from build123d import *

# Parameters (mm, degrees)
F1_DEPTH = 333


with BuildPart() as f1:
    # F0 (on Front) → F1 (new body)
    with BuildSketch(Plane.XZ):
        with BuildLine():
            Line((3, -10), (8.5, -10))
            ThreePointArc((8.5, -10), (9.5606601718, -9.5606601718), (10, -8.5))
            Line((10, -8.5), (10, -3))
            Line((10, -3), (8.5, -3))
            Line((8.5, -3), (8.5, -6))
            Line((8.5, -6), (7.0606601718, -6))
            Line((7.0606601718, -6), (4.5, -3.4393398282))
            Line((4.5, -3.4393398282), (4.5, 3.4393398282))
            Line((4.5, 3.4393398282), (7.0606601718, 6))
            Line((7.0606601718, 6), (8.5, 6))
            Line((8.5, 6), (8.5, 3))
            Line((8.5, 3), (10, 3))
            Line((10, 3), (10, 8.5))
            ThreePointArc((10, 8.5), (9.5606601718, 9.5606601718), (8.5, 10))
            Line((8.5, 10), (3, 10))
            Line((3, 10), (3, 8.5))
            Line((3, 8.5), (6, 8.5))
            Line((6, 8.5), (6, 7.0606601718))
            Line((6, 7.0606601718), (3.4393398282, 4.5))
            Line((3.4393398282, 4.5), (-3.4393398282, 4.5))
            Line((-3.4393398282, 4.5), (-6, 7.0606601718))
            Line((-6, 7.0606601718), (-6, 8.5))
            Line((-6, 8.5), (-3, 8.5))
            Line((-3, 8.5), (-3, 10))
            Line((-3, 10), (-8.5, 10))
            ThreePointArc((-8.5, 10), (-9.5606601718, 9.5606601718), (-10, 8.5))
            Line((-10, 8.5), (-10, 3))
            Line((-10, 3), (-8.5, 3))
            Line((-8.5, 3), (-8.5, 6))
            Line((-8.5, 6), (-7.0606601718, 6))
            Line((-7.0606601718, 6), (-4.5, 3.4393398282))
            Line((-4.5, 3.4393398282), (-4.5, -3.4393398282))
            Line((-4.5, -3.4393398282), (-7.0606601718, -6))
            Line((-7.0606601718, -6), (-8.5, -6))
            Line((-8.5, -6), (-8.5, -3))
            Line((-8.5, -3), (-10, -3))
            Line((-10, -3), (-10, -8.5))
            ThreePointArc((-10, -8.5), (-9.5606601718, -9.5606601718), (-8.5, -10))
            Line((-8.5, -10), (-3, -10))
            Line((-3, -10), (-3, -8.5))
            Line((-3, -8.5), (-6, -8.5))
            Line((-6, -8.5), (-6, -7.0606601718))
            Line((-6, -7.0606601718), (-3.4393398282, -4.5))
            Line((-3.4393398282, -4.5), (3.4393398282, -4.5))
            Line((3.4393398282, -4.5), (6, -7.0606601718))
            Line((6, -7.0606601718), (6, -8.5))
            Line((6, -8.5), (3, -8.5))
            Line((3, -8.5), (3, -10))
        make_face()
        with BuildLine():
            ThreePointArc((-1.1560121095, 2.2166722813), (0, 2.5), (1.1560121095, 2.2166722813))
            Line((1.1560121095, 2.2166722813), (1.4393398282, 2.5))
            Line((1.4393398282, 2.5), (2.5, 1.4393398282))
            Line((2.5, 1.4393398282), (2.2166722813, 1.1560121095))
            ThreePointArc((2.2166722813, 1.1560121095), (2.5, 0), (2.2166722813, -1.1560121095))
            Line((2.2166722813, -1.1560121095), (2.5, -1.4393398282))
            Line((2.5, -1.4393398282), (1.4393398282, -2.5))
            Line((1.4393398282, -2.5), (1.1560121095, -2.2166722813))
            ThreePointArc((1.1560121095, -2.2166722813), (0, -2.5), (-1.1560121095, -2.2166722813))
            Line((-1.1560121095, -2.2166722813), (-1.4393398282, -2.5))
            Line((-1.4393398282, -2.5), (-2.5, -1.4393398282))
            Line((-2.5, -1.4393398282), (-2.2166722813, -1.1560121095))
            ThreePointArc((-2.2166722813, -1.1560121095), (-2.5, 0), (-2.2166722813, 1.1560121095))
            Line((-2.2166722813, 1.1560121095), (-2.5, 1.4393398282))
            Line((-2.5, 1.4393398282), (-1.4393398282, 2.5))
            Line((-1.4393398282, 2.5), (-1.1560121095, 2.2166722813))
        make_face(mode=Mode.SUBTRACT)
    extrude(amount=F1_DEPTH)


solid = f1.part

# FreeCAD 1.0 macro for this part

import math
import FreeCAD as App
import Part
import Sketcher

doc = App.newDocument("Part")
params = doc.addObject("Spreadsheet::Sheet", "Params")
for row, (alias, value) in enumerate([
    ("sketch1_radius", "1.5 mm"),
    ("sketch1_radius2", "2.5 mm"),
    ("sketch1_width", "3 mm"),
    ("sketch1_width2", "5.5 mm"),
    ("sketch1_length", "1.5 mm"),
    ("pad1_length", "333 mm"),
], start=1):
    params.set(f"A{row}", alias)
    params.set(f"B{row}", "=" + value)
    params.setAlias(f"B{row}", alias)

body = doc.addObject("PartDesign::Body", "Body")

sketch1 = body.newObject("Sketcher::SketchObject", "Sketch")
sketch1.AttachmentSupport = (doc.getObject("XZ_Plane"), [""])
sketch1.MapMode = "FlatFace"
sketch1.addGeometry([
    Part.LineSegment(App.Vector(3, -10, 0), App.Vector(8.5, -10, 0)),
    Part.ArcOfCircle(Part.Circle(App.Vector(8.5, -8.5, 0), App.Vector(0, 0, 1), 1.5), math.radians(-90), math.radians(0)),
    Part.LineSegment(App.Vector(10, -8.5, 0), App.Vector(10, -3, 0)),
    Part.LineSegment(App.Vector(10, -3, 0), App.Vector(8.5, -3, 0)),
    Part.LineSegment(App.Vector(8.5, -3, 0), App.Vector(8.5, -6, 0)),
    Part.LineSegment(App.Vector(8.5, -6, 0), App.Vector(7.06066, -6, 0)),
    Part.LineSegment(App.Vector(7.06066, -6, 0), App.Vector(4.5, -3.43934, 0)),
    Part.LineSegment(App.Vector(4.5, -3.43934, 0), App.Vector(4.5, 3.43934, 0)),
    Part.LineSegment(App.Vector(4.5, 3.43934, 0), App.Vector(7.06066, 6, 0)),
    Part.LineSegment(App.Vector(7.06066, 6, 0), App.Vector(8.5, 6, 0)),
    Part.LineSegment(App.Vector(8.5, 6, 0), App.Vector(8.5, 3, 0)),
    Part.LineSegment(App.Vector(8.5, 3, 0), App.Vector(10, 3, 0)),
    Part.LineSegment(App.Vector(10, 3, 0), App.Vector(10, 8.5, 0)),
    Part.ArcOfCircle(Part.Circle(App.Vector(8.5, 8.5, 0), App.Vector(0, 0, 1), 1.5), math.radians(0), math.radians(90)),
    Part.LineSegment(App.Vector(8.5, 10, 0), App.Vector(3, 10, 0)),
    Part.LineSegment(App.Vector(3, 10, 0), App.Vector(3, 8.5, 0)),
    Part.LineSegment(App.Vector(3, 8.5, 0), App.Vector(6, 8.5, 0)),
    Part.LineSegment(App.Vector(6, 8.5, 0), App.Vector(6, 7.06066, 0)),
    Part.LineSegment(App.Vector(6, 7.06066, 0), App.Vector(3.43934, 4.5, 0)),
    Part.LineSegment(App.Vector(3.43934, 4.5, 0), App.Vector(-3.43934, 4.5, 0)),
    Part.LineSegment(App.Vector(-3.43934, 4.5, 0), App.Vector(-6, 7.06066, 0)),
    Part.LineSegment(App.Vector(-6, 7.06066, 0), App.Vector(-6, 8.5, 0)),
    Part.LineSegment(App.Vector(-6, 8.5, 0), App.Vector(-3, 8.5, 0)),
    Part.LineSegment(App.Vector(-3, 8.5, 0), App.Vector(-3, 10, 0)),
    Part.LineSegment(App.Vector(-3, 10, 0), App.Vector(-8.5, 10, 0)),
    Part.ArcOfCircle(Part.Circle(App.Vector(-8.5, 8.5, 0), App.Vector(0, 0, 1), 1.5), math.radians(90), math.radians(180)),
    Part.LineSegment(App.Vector(-10, 8.5, 0), App.Vector(-10, 3, 0)),
    Part.LineSegment(App.Vector(-10, 3, 0), App.Vector(-8.5, 3, 0)),
    Part.LineSegment(App.Vector(-8.5, 3, 0), App.Vector(-8.5, 6, 0)),
    Part.LineSegment(App.Vector(-8.5, 6, 0), App.Vector(-7.06066, 6, 0)),
    Part.LineSegment(App.Vector(-7.06066, 6, 0), App.Vector(-4.5, 3.43934, 0)),
    Part.LineSegment(App.Vector(-4.5, 3.43934, 0), App.Vector(-4.5, -3.43934, 0)),
    Part.LineSegment(App.Vector(-4.5, -3.43934, 0), App.Vector(-7.06066, -6, 0)),
    Part.LineSegment(App.Vector(-7.06066, -6, 0), App.Vector(-8.5, -6, 0)),
    Part.LineSegment(App.Vector(-8.5, -6, 0), App.Vector(-8.5, -3, 0)),
    Part.LineSegment(App.Vector(-8.5, -3, 0), App.Vector(-10, -3, 0)),
    Part.LineSegment(App.Vector(-10, -3, 0), App.Vector(-10, -8.5, 0)),
    Part.ArcOfCircle(Part.Circle(App.Vector(-8.5, -8.5, 0), App.Vector(0, 0, 1), 1.5), math.radians(180), math.radians(270)),
    Part.LineSegment(App.Vector(-8.5, -10, 0), App.Vector(-3, -10, 0)),
    Part.LineSegment(App.Vector(-3, -10, 0), App.Vector(-3, -8.5, 0)),
    Part.LineSegment(App.Vector(-3, -8.5, 0), App.Vector(-6, -8.5, 0)),
    Part.LineSegment(App.Vector(-6, -8.5, 0), App.Vector(-6, -7.06066, 0)),
    Part.LineSegment(App.Vector(-6, -7.06066, 0), App.Vector(-3.43934, -4.5, 0)),
    Part.LineSegment(App.Vector(-3.43934, -4.5, 0), App.Vector(3.43934, -4.5, 0)),
    Part.LineSegment(App.Vector(3.43934, -4.5, 0), App.Vector(6, -7.06066, 0)),
    Part.LineSegment(App.Vector(6, -7.06066, 0), App.Vector(6, -8.5, 0)),
    Part.LineSegment(App.Vector(6, -8.5, 0), App.Vector(3, -8.5, 0)),
    Part.LineSegment(App.Vector(3, -8.5, 0), App.Vector(3, -10, 0)),
    Part.LineSegment(App.Vector(-1.43934, 2.5, 0), App.Vector(-1.156012, 2.216672, 0)),
    Part.ArcOfCircle(Part.Circle(App.Vector(0, 0, 0), App.Vector(0, 0, 1), 2.5), math.radians(62.457603), math.radians(117.542397)),
    Part.LineSegment(App.Vector(1.156012, 2.216672, 0), App.Vector(1.43934, 2.5, 0)),
    Part.LineSegment(App.Vector(1.43934, 2.5, 0), App.Vector(2.5, 1.43934, 0)),
    Part.LineSegment(App.Vector(2.5, 1.43934, 0), App.Vector(2.216672, 1.156012, 0)),
    Part.ArcOfCircle(Part.Circle(App.Vector(0, 0, 0), App.Vector(0, 0, 1), 2.5), math.radians(-27.542397), math.radians(27.542397)),
    Part.LineSegment(App.Vector(2.216672, -1.156012, 0), App.Vector(2.5, -1.43934, 0)),
    Part.LineSegment(App.Vector(2.5, -1.43934, 0), App.Vector(1.43934, -2.5, 0)),
    Part.LineSegment(App.Vector(1.43934, -2.5, 0), App.Vector(1.156012, -2.216672, 0)),
    Part.ArcOfCircle(Part.Circle(App.Vector(0, 0, 0), App.Vector(0, 0, 1), 2.5), math.radians(-117.542397), math.radians(-62.457603)),
    Part.LineSegment(App.Vector(-1.156012, -2.216672, 0), App.Vector(-1.43934, -2.5, 0)),
    Part.LineSegment(App.Vector(-1.43934, -2.5, 0), App.Vector(-2.5, -1.43934, 0)),
    Part.LineSegment(App.Vector(-2.5, -1.43934, 0), App.Vector(-2.216672, -1.156012, 0)),
    Part.ArcOfCircle(Part.Circle(App.Vector(0, 0, 0), App.Vector(0, 0, 1), 2.5), math.radians(152.457603), math.radians(207.542397)),
    Part.LineSegment(App.Vector(-2.216672, 1.156012, 0), App.Vector(-2.5, 1.43934, 0)),
    Part.LineSegment(App.Vector(-2.5, 1.43934, 0), App.Vector(-1.43934, 2.5, 0)),
], False)
sketch1.addConstraint([
    Sketcher.Constraint("Tangent", 0, 2, 1, 1),
    Sketcher.Constraint("Tangent", 1, 2, 2, 1),
    Sketcher.Constraint("Coincident", 2, 2, 3, 1),
    Sketcher.Constraint("Coincident", 3, 2, 4, 1),
    Sketcher.Constraint("Coincident", 4, 2, 5, 1),
    Sketcher.Constraint("Coincident", 5, 2, 6, 1),
    Sketcher.Constraint("Coincident", 6, 2, 7, 1),
    Sketcher.Constraint("Coincident", 7, 2, 8, 1),
    Sketcher.Constraint("Coincident", 8, 2, 9, 1),
    Sketcher.Constraint("Coincident", 9, 2, 10, 1),
    Sketcher.Constraint("Coincident", 10, 2, 11, 1),
    Sketcher.Constraint("Coincident", 11, 2, 12, 1),
    Sketcher.Constraint("Tangent", 12, 2, 13, 1),
    Sketcher.Constraint("Tangent", 13, 2, 14, 1),
    Sketcher.Constraint("Coincident", 14, 2, 15, 1),
    Sketcher.Constraint("Coincident", 15, 2, 16, 1),
    Sketcher.Constraint("Coincident", 16, 2, 17, 1),
    Sketcher.Constraint("Coincident", 17, 2, 18, 1),
    Sketcher.Constraint("Coincident", 18, 2, 19, 1),
    Sketcher.Constraint("Coincident", 19, 2, 20, 1),
    Sketcher.Constraint("Coincident", 20, 2, 21, 1),
    Sketcher.Constraint("Coincident", 21, 2, 22, 1),
    Sketcher.Constraint("Coincident", 22, 2, 23, 1),
    Sketcher.Constraint("Coincident", 23, 2, 24, 1),
    Sketcher.Constraint("Tangent", 24, 2, 25, 1),
    Sketcher.Constraint("Tangent", 25, 2, 26, 1),
    Sketcher.Constraint("Coincident", 26, 2, 27, 1),
    Sketcher.Constraint("Coincident", 27, 2, 28, 1),
    Sketcher.Constraint("Coincident", 28, 2, 29, 1),
    Sketcher.Constraint("Coincident", 29, 2, 30, 1),
    Sketcher.Constraint("Coincident", 30, 2, 31, 1),
    Sketcher.Constraint("Coincident", 31, 2, 32, 1),
    Sketcher.Constraint("Coincident", 32, 2, 33, 1),
    Sketcher.Constraint("Coincident", 33, 2, 34, 1),
    Sketcher.Constraint("Coincident", 34, 2, 35, 1),
    Sketcher.Constraint("Coincident", 35, 2, 36, 1),
    Sketcher.Constraint("Tangent", 36, 2, 37, 1),
    Sketcher.Constraint("Tangent", 37, 2, 38, 1),
    Sketcher.Constraint("Coincident", 38, 2, 39, 1),
    Sketcher.Constraint("Coincident", 39, 2, 40, 1),
    Sketcher.Constraint("Coincident", 40, 2, 41, 1),
    Sketcher.Constraint("Coincident", 41, 2, 42, 1),
    Sketcher.Constraint("Coincident", 42, 2, 43, 1),
    Sketcher.Constraint("Coincident", 43, 2, 44, 1),
    Sketcher.Constraint("Coincident", 44, 2, 45, 1),
    Sketcher.Constraint("Coincident", 45, 2, 46, 1),
    Sketcher.Constraint("Coincident", 46, 2, 47, 1),
    Sketcher.Constraint("Coincident", 47, 2, 0, 1),
    Sketcher.Constraint("Coincident", 48, 2, 49, 2),
    Sketcher.Constraint("Coincident", 49, 1, 50, 1),
    Sketcher.Constraint("Coincident", 50, 2, 51, 1),
    Sketcher.Constraint("Coincident", 51, 2, 52, 1),
    Sketcher.Constraint("Coincident", 52, 2, 53, 2),
    Sketcher.Constraint("Coincident", 53, 1, 54, 1),
    Sketcher.Constraint("Coincident", 54, 2, 55, 1),
    Sketcher.Constraint("Coincident", 55, 2, 56, 1),
    Sketcher.Constraint("Coincident", 56, 2, 57, 2),
    Sketcher.Constraint("Coincident", 57, 1, 58, 1),
    Sketcher.Constraint("Coincident", 58, 2, 59, 1),
    Sketcher.Constraint("Coincident", 59, 2, 60, 1),
    Sketcher.Constraint("Coincident", 60, 2, 61, 2),
    Sketcher.Constraint("Coincident", 61, 1, 62, 1),
    Sketcher.Constraint("Coincident", 62, 2, 63, 1),
    Sketcher.Constraint("Coincident", 63, 2, 48, 1),
    Sketcher.Constraint("Horizontal", 0),
    Sketcher.Constraint("Vertical", 2),
    Sketcher.Constraint("Horizontal", 3),
    Sketcher.Constraint("Vertical", 4),
    Sketcher.Constraint("Horizontal", 5),
    Sketcher.Constraint("Vertical", 7),
    Sketcher.Constraint("Horizontal", 9),
    Sketcher.Constraint("Vertical", 10),
    Sketcher.Constraint("Horizontal", 11),
    Sketcher.Constraint("Vertical", 12),
    Sketcher.Constraint("Horizontal", 14),
    Sketcher.Constraint("Vertical", 15),
    Sketcher.Constraint("Horizontal", 16),
    Sketcher.Constraint("Vertical", 17),
    Sketcher.Constraint("Horizontal", 19),
    Sketcher.Constraint("Vertical", 21),
    Sketcher.Constraint("Horizontal", 22),
    Sketcher.Constraint("Vertical", 23),
    Sketcher.Constraint("Horizontal", 24),
    Sketcher.Constraint("Vertical", 26),
    Sketcher.Constraint("Horizontal", 27),
    Sketcher.Constraint("Vertical", 28),
    Sketcher.Constraint("Horizontal", 29),
    Sketcher.Constraint("Vertical", 31),
    Sketcher.Constraint("Horizontal", 33),
    Sketcher.Constraint("Vertical", 34),
    Sketcher.Constraint("Horizontal", 35),
    Sketcher.Constraint("Vertical", 36),
    Sketcher.Constraint("Horizontal", 38),
    Sketcher.Constraint("Vertical", 39),
    Sketcher.Constraint("Horizontal", 40),
    Sketcher.Constraint("Vertical", 41),
    Sketcher.Constraint("Horizontal", 43),
    Sketcher.Constraint("Vertical", 45),
    Sketcher.Constraint("Horizontal", 46),
    Sketcher.Constraint("Vertical", 47),
    Sketcher.Constraint("Coincident", 49, 3, -1, 1),
    Sketcher.Constraint("Coincident", 53, 3, -1, 1),
    Sketcher.Constraint("Coincident", 57, 3, -1, 1),
    Sketcher.Constraint("Coincident", 61, 3, -1, 1),
    Sketcher.Constraint("Equal", 1, 13),
    Sketcher.Constraint("Equal", 13, 25),
    Sketcher.Constraint("Equal", 25, 37),
    Sketcher.Constraint("Equal", 49, 53),
    Sketcher.Constraint("Equal", 53, 57),
    Sketcher.Constraint("Equal", 57, 61),
    Sketcher.Constraint("Symmetric", 1, 3, 25, 3, -1, 1),
    Sketcher.Constraint("Symmetric", 13, 3, 37, 3, -1, 1),
    Sketcher.Constraint("Symmetric", 3, 2, 27, 2, -1, 1),
    Sketcher.Constraint("Symmetric", 5, 2, 29, 2, -1, 1),
    Sketcher.Constraint("Symmetric", 6, 2, 30, 2, -1, 1),
    Sketcher.Constraint("Symmetric", 8, 2, 32, 2, -1, 1),
    Sketcher.Constraint("Symmetric", 10, 2, 34, 2, -1, 1),
    Sketcher.Constraint("Symmetric", 15, 2, 39, 2, -1, 1),
    Sketcher.Constraint("Symmetric", 17, 2, 41, 2, -1, 1),
    Sketcher.Constraint("Symmetric", 18, 2, 42, 2, -1, 1),
    Sketcher.Constraint("Symmetric", 20, 2, 44, 2, -1, 1),
    Sketcher.Constraint("Symmetric", 22, 2, 46, 2, -1, 1),
    Sketcher.Constraint("Symmetric", 50, 2, 58, 2, -1, 1),
    Sketcher.Constraint("Symmetric", 51, 2, 59, 2, -1, 1),
    Sketcher.Constraint("Symmetric", 54, 2, 62, 2, -1, 1),
    Sketcher.Constraint("Symmetric", 55, 2, 63, 2, -1, 1),
    Sketcher.Constraint("Symmetric", 13, 3, 25, 3, -2),
    Sketcher.Constraint("Symmetric", 17, 2, 20, 2, -2),
    Sketcher.Constraint("Symmetric", 15, 2, 22, 2, -2),
    Sketcher.Constraint("Symmetric", 10, 2, 27, 2, -2),
    Sketcher.Constraint("Symmetric", 8, 2, 29, 2, -2),
    Sketcher.Constraint("Symmetric", 55, 2, 58, 2, -2),
    Sketcher.Constraint("Symmetric", 54, 2, 59, 2, -2),
    Sketcher.Constraint("Perpendicular", 6, 8),
    Sketcher.Constraint("Parallel", 8, 18),
    Sketcher.Constraint("Perpendicular", 18, 20),
    Sketcher.Constraint("Perpendicular", 30, 32),
    Sketcher.Constraint("Perpendicular", 42, 44),
    Sketcher.Constraint("Parallel", 44, 48),
    Sketcher.Constraint("Perpendicular", 48, 50),
    Sketcher.Constraint("Perpendicular", 50, 51),
    Sketcher.Constraint("Perpendicular", 51, 52),
    Sketcher.Constraint("Perpendicular", 52, 54),
    Sketcher.Constraint("Perpendicular", 54, 55),
    Sketcher.Constraint("Perpendicular", 55, 56),
    Sketcher.Constraint("Perpendicular", 56, 58),
    Sketcher.Constraint("Perpendicular", 59, 60),
    Sketcher.Constraint("Perpendicular", 60, 62),
    Sketcher.Constraint("Horizontal", 12, 2, 15, 2),
    Sketcher.Constraint("Vertical", 0, 2, 3, 2),
    Sketcher.Constraint("Equal", 38, 2),
    Sketcher.Constraint("Equal", 46, 4),
    Sketcher.Constraint("Equal", 43, 7),
    Sketcher.Constraint("Equal", 33, 17),
    Sketcher.Constraint("Equal", 8, 18),
    Sketcher.Constraint("Equal", 50, 52),
    Sketcher.Constraint("Radius", 1, 1.5),
    Sketcher.Constraint("Radius", 49, 2.5),
    Sketcher.Constraint("DistanceX", 16, 1, 16, 2, 3.0),
    Sketcher.Constraint("DistanceX", 0, 1, 0, 2, 5.5),
    Sketcher.Constraint("DistanceY", 0, 2, -1, 1, 10.0),
    Sketcher.Constraint("Distance", 51, 1.5),
    Sketcher.Constraint("DistanceX", -1, 1, 6, 2, 4.5),
    Sketcher.Constraint("DistanceY", -1, 1, 50, 2, 2.5),
    Sketcher.Constraint("DistanceX", 5, 2, 5, 1, 1.43934),
])
sketch1.setExpression("Constraints[156]", "Params.sketch1_radius")
sketch1.setExpression("Constraints[157]", "Params.sketch1_radius2")
sketch1.setExpression("Constraints[158]", "Params.sketch1_width")
sketch1.setExpression("Constraints[159]", "Params.sketch1_width2")
sketch1.setExpression("Constraints[161]", "Params.sketch1_length")
pad1 = body.newObject("PartDesign::Pad", "Pad")
pad1.Profile = sketch1
pad1.setExpression("Length", "Params.pad1_length")

doc.recompute()
